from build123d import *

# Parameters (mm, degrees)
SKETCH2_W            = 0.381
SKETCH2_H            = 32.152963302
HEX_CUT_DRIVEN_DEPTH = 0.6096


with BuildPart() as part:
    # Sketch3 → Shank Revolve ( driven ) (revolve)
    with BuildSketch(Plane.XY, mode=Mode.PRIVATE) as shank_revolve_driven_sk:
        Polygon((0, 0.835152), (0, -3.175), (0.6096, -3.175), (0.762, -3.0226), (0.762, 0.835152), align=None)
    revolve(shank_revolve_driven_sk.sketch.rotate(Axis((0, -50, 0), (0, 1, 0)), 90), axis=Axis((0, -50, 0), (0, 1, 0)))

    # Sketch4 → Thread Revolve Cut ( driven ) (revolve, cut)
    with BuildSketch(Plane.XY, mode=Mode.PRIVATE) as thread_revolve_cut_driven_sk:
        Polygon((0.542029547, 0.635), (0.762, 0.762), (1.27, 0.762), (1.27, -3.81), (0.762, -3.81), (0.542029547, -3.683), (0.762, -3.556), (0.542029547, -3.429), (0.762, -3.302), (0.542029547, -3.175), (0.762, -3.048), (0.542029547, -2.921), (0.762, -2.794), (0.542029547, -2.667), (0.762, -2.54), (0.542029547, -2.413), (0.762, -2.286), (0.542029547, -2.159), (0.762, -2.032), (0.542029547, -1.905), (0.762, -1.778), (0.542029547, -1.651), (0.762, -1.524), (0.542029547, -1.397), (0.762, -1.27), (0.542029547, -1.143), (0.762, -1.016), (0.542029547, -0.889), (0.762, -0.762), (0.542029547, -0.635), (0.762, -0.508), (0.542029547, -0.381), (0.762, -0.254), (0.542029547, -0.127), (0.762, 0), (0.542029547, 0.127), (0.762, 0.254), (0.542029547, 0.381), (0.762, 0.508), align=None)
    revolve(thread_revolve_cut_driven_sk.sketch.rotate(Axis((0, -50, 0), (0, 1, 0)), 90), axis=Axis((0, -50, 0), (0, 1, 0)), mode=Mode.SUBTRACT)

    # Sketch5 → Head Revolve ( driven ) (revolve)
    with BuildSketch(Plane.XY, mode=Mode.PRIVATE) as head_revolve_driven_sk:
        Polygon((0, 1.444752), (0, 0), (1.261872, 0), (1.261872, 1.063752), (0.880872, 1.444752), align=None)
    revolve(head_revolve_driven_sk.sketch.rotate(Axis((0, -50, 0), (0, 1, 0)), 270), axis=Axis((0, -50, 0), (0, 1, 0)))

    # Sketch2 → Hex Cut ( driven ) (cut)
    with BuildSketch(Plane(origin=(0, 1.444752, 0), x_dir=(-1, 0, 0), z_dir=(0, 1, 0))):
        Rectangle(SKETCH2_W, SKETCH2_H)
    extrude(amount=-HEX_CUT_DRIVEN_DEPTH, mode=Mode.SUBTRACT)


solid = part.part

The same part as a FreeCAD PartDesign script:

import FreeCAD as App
import Part
import Sketcher
from FreeCAD import Vector
Q = App.Units.Quantity

doc = App.newDocument("Part")
body = doc.addObject("PartDesign::Body", "Body")

# Sketch on XY plane
sketch1 = body.newObject("Sketcher::SketchObject", "Sketch")
sketch1.AttachmentSupport = (doc.getObject("XY_Plane"), [""])
sketch1.MapMode = "FlatFace"
sketch1.addGeometry([
    Part.LineSegment(Vector(0, 0.835152, 0), Vector(0, -3.175, 0)),  # 0
    Part.LineSegment(Vector(0, -3.175, 0), Vector(0.6096, -3.175, 0)),  # 1
    Part.LineSegment(Vector(0.6096, -3.175, 0), Vector(0.762, -3.0226, 0)),  # 2
    Part.LineSegment(Vector(0.762, -3.0226, 0), Vector(0.762, 0.835152, 0)),  # 3
    Part.LineSegment(Vector(0.762, 0.835152, 0), Vector(0, 0.835152, 0)),  # 4
], False)
sketch1.addConstraint([
    Sketcher.Constraint("Coincident", 0, 2, 1, 1),
    Sketcher.Constraint("Coincident", 1, 2, 2, 1),
    Sketcher.Constraint("Coincident", 2, 2, 3, 1),
    Sketcher.Constraint("Coincident", 3, 2, 4, 1),
    Sketcher.Constraint("Coincident", 4, 2, 0, 1),
    Sketcher.Constraint("Vertical", 0),
    Sketcher.Constraint("Horizontal", 1),
    Sketcher.Constraint("Vertical", 3),
    Sketcher.Constraint("Horizontal", 4),
    Sketcher.Constraint("PointOnObject", 0, 2, -2),
    Sketcher.Constraint("Angle", 2, Q("45 deg")),
    Sketcher.Constraint("DistanceX", 4, 2, 4, 1, Q("0.03 in")),
    Sketcher.Constraint("DistanceX", 1, 1, 1, 2, Q("0.024 in")),
    Sketcher.Constraint("DistanceY", 0, 2, -1, 1, Q("0.125 in")),
    Sketcher.Constraint("DistanceY", 0, 2, 0, 1, 4.010152),
])
revolution = body.newObject("PartDesign::Revolution", "Revolution")
revolution.Profile = sketch1
revolution.ReferenceAxis = (sketch1, ["V_Axis"])
revolution.Angle = 360

# Sketch on XY plane
sketch2 = body.newObject("Sketcher::SketchObject", "Sketch001")
sketch2.AttachmentSupport = (doc.getObject("XY_Plane"), [""])
sketch2.MapMode = "FlatFace"
sketch2.addGeometry([
    Part.LineSegment(Vector(0.762, 0.762, 0), Vector(0.54203, 0.635, 0)),  # 0
    Part.LineSegment(Vector(0.54203, 0.635, 0), Vector(0.762, 0.508, 0)),  # 1
    Part.LineSegment(Vector(0.762, 0.508, 0), Vector(0.54203, 0.381, 0)),  # 2
    Part.LineSegment(Vector(0.54203, 0.381, 0), Vector(0.762, 0.254, 0)),  # 3
    Part.LineSegment(Vector(0.762, 0.254, 0), Vector(0.54203, 0.127, 0)),  # 4
    Part.LineSegment(Vector(0.54203, 0.127, 0), Vector(0.762, 0, 0)),  # 5
    Part.LineSegment(Vector(0.762, 0, 0), Vector(0.54203, -0.127, 0)),  # 6
    Part.LineSegment(Vector(0.54203, -0.127, 0), Vector(0.762, -0.254, 0)),  # 7
    Part.LineSegment(Vector(0.762, -0.254, 0), Vector(0.54203, -0.381, 0)),  # 8
    Part.LineSegment(Vector(0.54203, -0.381, 0), Vector(0.762, -0.508, 0)),  # 9
    Part.LineSegment(Vector(0.762, -0.508, 0), Vector(0.54203, -0.635, 0)),  # 10
    Part.LineSegment(Vector(0.54203, -0.635, 0), Vector(0.762, -0.762, 0)),  # 11
    Part.LineSegment(Vector(0.762, -0.762, 0), Vector(0.54203, -0.889, 0)),  # 12
    Part.LineSegment(Vector(0.54203, -0.889, 0), Vector(0.762, -1.016, 0)),  # 13
    Part.LineSegment(Vector(0.762, -1.016, 0), Vector(0.54203, -1.143, 0)),  # 14
    Part.LineSegment(Vector(0.54203, -1.143, 0), Vector(0.762, -1.27, 0)),  # 15
    Part.LineSegment(Vector(0.762, -1.27, 0), Vector(0.54203, -1.397, 0)),  # 16
    Part.LineSegment(Vector(0.54203, -1.397, 0), Vector(0.762, -1.524, 0)),  # 17
    Part.LineSegment(Vector(0.762, -1.524, 0), Vector(0.54203, -1.651, 0)),  # 18
    Part.LineSegment(Vector(0.54203, -1.651, 0), Vector(0.762, -1.778, 0)),  # 19
    Part.LineSegment(Vector(0.762, -1.778, 0), Vector(0.54203, -1.905, 0)),  # 20
    Part.LineSegment(Vector(0.54203, -1.905, 0), Vector(0.762, -2.032, 0)),  # 21
    Part.LineSegment(Vector(0.762, -2.032, 0), Vector(0.54203, -2.159, 0)),  # 22
    Part.LineSegment(Vector(0.54203, -2.159, 0), Vector(0.762, -2.286, 0)),  # 23
    Part.LineSegment(Vector(0.762, -2.286, 0), Vector(0.54203, -2.413, 0)),  # 24
    Part.LineSegment(Vector(0.54203, -2.413, 0), Vector(0.762, -2.54, 0)),  # 25
    Part.LineSegment(Vector(0.762, -2.54, 0), Vector(0.54203, -2.667, 0)),  # 26
    Part.LineSegment(Vector(0.54203, -2.667, 0), Vector(0.762, -2.794, 0)),  # 27
    Part.LineSegment(Vector(0.762, -2.794, 0), Vector(0.54203, -2.921, 0)),  # 28
    Part.LineSegment(Vector(0.54203, -2.921, 0), Vector(0.762, -3.048, 0)),  # 29
    Part.LineSegment(Vector(0.762, -3.048, 0), Vector(0.54203, -3.175, 0)),  # 30
    Part.LineSegment(Vector(0.54203, -3.175, 0), Vector(0.762, -3.302, 0)),  # 31
    Part.LineSegment(Vector(0.762, -3.302, 0), Vector(0.54203, -3.429, 0)),  # 32
    Part.LineSegment(Vector(0.54203, -3.429, 0), Vector(0.762, -3.556, 0)),  # 33
    Part.LineSegment(Vector(0.762, -3.556, 0), Vector(0.54203, -3.683, 0)),  # 34
    Part.LineSegment(Vector(0.54203, -3.683, 0), Vector(0.762, -3.81, 0)),  # 35
    Part.LineSegment(Vector(0.762, -3.81, 0), Vector(1.27, -3.81, 0)),  # 36
    Part.LineSegment(Vector(1.27, -3.81, 0), Vector(1.27, 0.762, 0)),  # 37
    Part.LineSegment(Vector(1.27, 0.762, 0), Vector(0.762, 0.762, 0)),  # 38
], False)
sketch2.addConstraint([
    Sketcher.Constraint("Coincident", 0, 2, 1, 1),
    Sketcher.Constraint("Coincident", 1, 2, 2, 1),
    Sketcher.Constraint("Coincident", 2, 2, 3, 1),
    Sketcher.Constraint("Coincident", 3, 2, 4, 1),
    Sketcher.Constraint("Coincident", 4, 2, 5, 1),
    Sketcher.Constraint("Coincident", 5, 2, 6, 1),
    Sketcher.Constraint("Coincident", 6, 2, 7, 1),
    Sketcher.Constraint("Coincident", 7, 2, 8, 1),
    Sketcher.Constraint("Coincident", 8, 2, 9, 1),
    Sketcher.Constraint("Coincident", 9, 2, 10, 1),
    Sketcher.Constraint("Coincident", 10, 2, 11, 1),
    Sketcher.Constraint("Coincident", 11, 2, 12, 1),
    Sketcher.Constraint("Coincident", 12, 2, 13, 1),
    Sketcher.Constraint("Coincident", 13, 2, 14, 1),
    Sketcher.Constraint("Coincident", 14, 2, 15, 1),
    Sketcher.Constraint("Coincident", 15, 2, 16, 1),
    Sketcher.Constraint("Coincident", 16, 2, 17, 1),
    Sketcher.Constraint("Coincident", 17, 2, 18, 1),
    Sketcher.Constraint("Coincident", 18, 2, 19, 1),
    Sketcher.Constraint("Coincident", 19, 2, 20, 1),
    Sketcher.Constraint("Coincident", 20, 2, 21, 1),
    Sketcher.Constraint("Coincident", 21, 2, 22, 1),
    Sketcher.Constraint("Coincident", 22, 2, 23, 1),
    Sketcher.Constraint("Coincident", 23, 2, 24, 1),
    Sketcher.Constraint("Coincident", 24, 2, 25, 1),
    Sketcher.Constraint("Coincident", 25, 2, 26, 1),
    Sketcher.Constraint("Coincident", 26, 2, 27, 1),
    Sketcher.Constraint("Coincident", 27, 2, 28, 1),
    Sketcher.Constraint("Coincident", 28, 2, 29, 1),
    Sketcher.Constraint("Coincident", 29, 2, 30, 1),
    Sketcher.Constraint("Coincident", 30, 2, 31, 1),
    Sketcher.Constraint("Coincident", 31, 2, 32, 1),
    Sketcher.Constraint("Coincident", 32, 2, 33, 1),
    Sketcher.Constraint("Coincident", 33, 2, 34, 1),
    Sketcher.Constraint("Coincident", 34, 2, 35, 1),
    Sketcher.Constraint("Coincident", 35, 2, 36, 1),
    Sketcher.Constraint("Coincident", 36, 2, 37, 1),
    Sketcher.Constraint("Coincident", 37, 2, 38, 1),
    Sketcher.Constraint("Coincident", 38, 2, 0, 1),
    Sketcher.Constraint("Horizontal", 36),
    Sketcher.Constraint("Vertical", 37),
    Sketcher.Constraint("Horizontal", 38),
    Sketcher.Constraint("Symmetric", 4, 2, 6, 2, -1),
    Sketcher.Constraint("Symmetric", 3, 2, 7, 2, -1),
    Sketcher.Constraint("Symmetric", 2, 2, 8, 2, -1),
    Sketcher.Constraint("Symmetric", 1, 2, 9, 2, -1),
    Sketcher.Constraint("Symmetric", 0, 2, 10, 2, -1),
    Sketcher.Constraint("Symmetric", 11, 2, 38, 2, -1),
    Sketcher.Constraint("PointOnObject", 5, 2, -1),
    Sketcher.Constraint("Parallel", 0, 2),
    Sketcher.Constraint("Parallel", 1, 3),
    Sketcher.Constraint("Parallel", 2, 4),
    Sketcher.Constraint("Parallel", 3, 5),
    Sketcher.Constraint("Parallel", 4, 6),
    Sketcher.Constraint("Parallel", 10, 12),
    Sketcher.Constraint("Parallel", 11, 13),
    Sketcher.Constraint("Parallel", 12, 14),
    Sketcher.Constraint("Parallel", 13, 15),
    Sketcher.Constraint("Parallel", 14, 16),
    Sketcher.Constraint("Parallel", 15, 17),
    Sketcher.Constraint("Parallel", 16, 18),
    Sketcher.Constraint("Parallel", 17, 19),
    Sketcher.Constraint("Parallel", 18, 20),
    Sketcher.Constraint("Parallel", 19, 21),
    Sketcher.Constraint("Parallel", 20, 22),
    Sketcher.Constraint("Parallel", 21, 23),
    Sketcher.Constraint("Parallel", 22, 24),
    Sketcher.Constraint("Parallel", 23, 25),
    Sketcher.Constraint("Parallel", 24, 26),
    Sketcher.Constraint("Parallel", 25, 27),
    Sketcher.Constraint("Parallel", 26, 28),
    Sketcher.Constraint("Parallel", 27, 29),
    Sketcher.Constraint("Parallel", 28, 30),
    Sketcher.Constraint("Parallel", 29, 31),
    Sketcher.Constraint("Parallel", 30, 32),
    Sketcher.Constraint("Parallel", 31, 33),
    Sketcher.Constraint("Parallel", 32, 34),
    Sketcher.Constraint("Parallel", 33, 35),
    Sketcher.Constraint("Vertical", 0, 2, 2, 2),
    Sketcher.Constraint("Vertical", 1, 2, 3, 2),
    Sketcher.Constraint("Vertical", 2, 2, 4, 2),
    Sketcher.Constraint("Vertical", 3, 2, 5, 2),
    Sketcher.Constraint("Vertical", 9, 2, 11, 2),
    Sketcher.Constraint("Vertical", 10, 2, 12, 2),
    Sketcher.Constraint("Vertical", 11, 2, 13, 2),
    Sketcher.Constraint("Vertical", 12, 2, 14, 2),
    Sketcher.Constraint("Vertical", 13, 2, 15, 2),
    Sketcher.Constraint("Vertical", 14, 2, 16, 2),
    Sketcher.Constraint("Vertical", 15, 2, 17, 2),
    Sketcher.Constraint("Vertical", 16, 2, 18, 2),
    Sketcher.Constraint("Vertical", 17, 2, 19, 2),
    Sketcher.Constraint("Vertical", 18, 2, 20, 2),
    Sketcher.Constraint("Vertical", 19, 2, 21, 2),
    Sketcher.Constraint("Vertical", 20, 2, 22, 2),
    Sketcher.Constraint("Vertical", 21, 2, 23, 2),
    Sketcher.Constraint("Vertical", 22, 2, 24, 2),
    Sketcher.Constraint("Vertical", 23, 2, 25, 2),
    Sketcher.Constraint("Vertical", 24, 2, 26, 2),
    Sketcher.Constraint("Vertical", 25, 2, 27, 2),
    Sketcher.Constraint("Vertical", 26, 2, 28, 2),
    Sketcher.Constraint("Vertical", 27, 2, 29, 2),
    Sketcher.Constraint("Vertical", 28, 2, 30, 2),
    Sketcher.Constraint("Vertical", 29, 2, 31, 2),
    Sketcher.Constraint("Vertical", 30, 2, 32, 2),
    Sketcher.Constraint("Vertical", 31, 2, 33, 2),
    Sketcher.Constraint("Vertical", 32, 2, 34, 2),
    Sketcher.Constraint("Vertical", 33, 2, 35, 2),
    Sketcher.Constraint("Angle", 0, Q("-150 deg")),
    Sketcher.Constraint("DistanceX", 36, 1, 36, 2, Q("0.02 in")),
    Sketcher.Constraint("DistanceY", 37, 1, 37, 2, Q("0.18 in")),
    Sketcher.Constraint("DistanceX", -1, 1, 1, 2, Q("0.03 in")),
])
groove = body.newObject("PartDesign::Groove", "Groove")
groove.Profile = sketch2
groove.ReferenceAxis = (sketch2, ["V_Axis"])
groove.Angle = 360

# Sketch on XY plane
sketch3 = body.newObject("Sketcher::SketchObject", "Sketch002")
sketch3.AttachmentSupport = (doc.getObject("XY_Plane"), [""])
sketch3.MapMode = "FlatFace"
sketch3.addGeometry([
    Part.LineSegment(Vector(0, 1.444752, 0), Vector(0, 0, 0)),  # 0
    Part.LineSegment(Vector(0, 0, 0), Vector(1.261872, 0, 0)),  # 1
    Part.LineSegment(Vector(1.261872, 0, 0), Vector(1.261872, 1.063752, 0)),  # 2
    Part.LineSegment(Vector(1.261872, 1.063752, 0), Vector(0.880872, 1.444752, 0)),  # 3
    Part.LineSegment(Vector(0.880872, 1.444752, 0), Vector(0, 1.444752, 0)),  # 4
], False)
sketch3.addConstraint([
    Sketcher.Constraint("Coincident", 0, 2, 1, 1),
    Sketcher.Constraint("Coincident", 1, 2, 2, 1),
    Sketcher.Constraint("Coincident", 2, 2, 3, 1),
    Sketcher.Constraint("Coincident", 3, 2, 4, 1),
    Sketcher.Constraint("Coincident", 4, 2, 0, 1),
    Sketcher.Constraint("Vertical", 0),
    Sketcher.Constraint("Horizontal", 1),
    Sketcher.Constraint("Vertical", 2),
    Sketcher.Constraint("Horizontal", 4),
    Sketcher.Constraint("Coincident", 0, 2, -1, 1),
    Sketcher.Constraint("Angle", 3, Q("135 deg")),
    Sketcher.Constraint("DistanceX", 3, 2, 2, 2, Q("0.015 in")),
    Sketcher.Constraint("DistanceX", 4, 2, 4, 1, 0.880872),
    Sketcher.Constraint("DistanceY", 0, 2, 0, 1, 1.444752),
])
revolution2 = body.newObject("PartDesign::Revolution", "Revolution001")
revolution2.Profile = sketch3
revolution2.ReferenceAxis = (sketch3, ["V_Axis"])
revolution2.Angle = 360

# Sketch on XZ plane
sketch4 = body.newObject("Sketcher::SketchObject", "Sketch003")
sketch4.AttachmentSupport = (doc.getObject("XZ_Plane"), [""])
sketch4.MapMode = "FlatFace"
sketch4.AttachmentOffset = App.Placement(Vector(0, 0, -1.444752), App.Rotation())
sketch4.addGeometry([
    Part.LineSegment(Vector(0.1905, 16.076482, 0), Vector(0.1905, -16.076482, 0)),
    Part.LineSegment(Vector(0.1905, -16.076482, 0), Vector(-0.1905, -16.076482, 0)),
    Part.LineSegment(Vector(-0.1905, -16.076482, 0), Vector(-0.1905, 16.076482, 0)),
    Part.LineSegment(Vector(-0.1905, 16.076482, 0), Vector(0.1905, 16.076482, 0)),
], False)
sketch4.addConstraint([
    Sketcher.Constraint("Coincident", 0, 2, 1, 1),
    Sketcher.Constraint("Coincident", 1, 2, 2, 1),
    Sketcher.Constraint("Coincident", 2, 2, 3, 1),
    Sketcher.Constraint("Coincident", 3, 2, 0, 1),
    Sketcher.Constraint("Vertical", 0),
    Sketcher.Constraint("Horizontal", 1),
    Sketcher.Constraint("Vertical", 2),
    Sketcher.Constraint("Horizontal", 3),
    Sketcher.Constraint("Symmetric", 0, 2, 2, 2, -1, 1),
    Sketcher.Constraint("DistanceX", 1, 2, 1, 1, Q("0.015 in")),
    Sketcher.Constraint("DistanceY", 0, 2, 0, 1, 32.152963),
])
pocket1 = body.newObject("PartDesign::Pocket", "Pocket")
pocket1.Profile = sketch4
pocket1.Length = Q("0.024 in")
pocket1.Reversed = True

doc.recompute()
